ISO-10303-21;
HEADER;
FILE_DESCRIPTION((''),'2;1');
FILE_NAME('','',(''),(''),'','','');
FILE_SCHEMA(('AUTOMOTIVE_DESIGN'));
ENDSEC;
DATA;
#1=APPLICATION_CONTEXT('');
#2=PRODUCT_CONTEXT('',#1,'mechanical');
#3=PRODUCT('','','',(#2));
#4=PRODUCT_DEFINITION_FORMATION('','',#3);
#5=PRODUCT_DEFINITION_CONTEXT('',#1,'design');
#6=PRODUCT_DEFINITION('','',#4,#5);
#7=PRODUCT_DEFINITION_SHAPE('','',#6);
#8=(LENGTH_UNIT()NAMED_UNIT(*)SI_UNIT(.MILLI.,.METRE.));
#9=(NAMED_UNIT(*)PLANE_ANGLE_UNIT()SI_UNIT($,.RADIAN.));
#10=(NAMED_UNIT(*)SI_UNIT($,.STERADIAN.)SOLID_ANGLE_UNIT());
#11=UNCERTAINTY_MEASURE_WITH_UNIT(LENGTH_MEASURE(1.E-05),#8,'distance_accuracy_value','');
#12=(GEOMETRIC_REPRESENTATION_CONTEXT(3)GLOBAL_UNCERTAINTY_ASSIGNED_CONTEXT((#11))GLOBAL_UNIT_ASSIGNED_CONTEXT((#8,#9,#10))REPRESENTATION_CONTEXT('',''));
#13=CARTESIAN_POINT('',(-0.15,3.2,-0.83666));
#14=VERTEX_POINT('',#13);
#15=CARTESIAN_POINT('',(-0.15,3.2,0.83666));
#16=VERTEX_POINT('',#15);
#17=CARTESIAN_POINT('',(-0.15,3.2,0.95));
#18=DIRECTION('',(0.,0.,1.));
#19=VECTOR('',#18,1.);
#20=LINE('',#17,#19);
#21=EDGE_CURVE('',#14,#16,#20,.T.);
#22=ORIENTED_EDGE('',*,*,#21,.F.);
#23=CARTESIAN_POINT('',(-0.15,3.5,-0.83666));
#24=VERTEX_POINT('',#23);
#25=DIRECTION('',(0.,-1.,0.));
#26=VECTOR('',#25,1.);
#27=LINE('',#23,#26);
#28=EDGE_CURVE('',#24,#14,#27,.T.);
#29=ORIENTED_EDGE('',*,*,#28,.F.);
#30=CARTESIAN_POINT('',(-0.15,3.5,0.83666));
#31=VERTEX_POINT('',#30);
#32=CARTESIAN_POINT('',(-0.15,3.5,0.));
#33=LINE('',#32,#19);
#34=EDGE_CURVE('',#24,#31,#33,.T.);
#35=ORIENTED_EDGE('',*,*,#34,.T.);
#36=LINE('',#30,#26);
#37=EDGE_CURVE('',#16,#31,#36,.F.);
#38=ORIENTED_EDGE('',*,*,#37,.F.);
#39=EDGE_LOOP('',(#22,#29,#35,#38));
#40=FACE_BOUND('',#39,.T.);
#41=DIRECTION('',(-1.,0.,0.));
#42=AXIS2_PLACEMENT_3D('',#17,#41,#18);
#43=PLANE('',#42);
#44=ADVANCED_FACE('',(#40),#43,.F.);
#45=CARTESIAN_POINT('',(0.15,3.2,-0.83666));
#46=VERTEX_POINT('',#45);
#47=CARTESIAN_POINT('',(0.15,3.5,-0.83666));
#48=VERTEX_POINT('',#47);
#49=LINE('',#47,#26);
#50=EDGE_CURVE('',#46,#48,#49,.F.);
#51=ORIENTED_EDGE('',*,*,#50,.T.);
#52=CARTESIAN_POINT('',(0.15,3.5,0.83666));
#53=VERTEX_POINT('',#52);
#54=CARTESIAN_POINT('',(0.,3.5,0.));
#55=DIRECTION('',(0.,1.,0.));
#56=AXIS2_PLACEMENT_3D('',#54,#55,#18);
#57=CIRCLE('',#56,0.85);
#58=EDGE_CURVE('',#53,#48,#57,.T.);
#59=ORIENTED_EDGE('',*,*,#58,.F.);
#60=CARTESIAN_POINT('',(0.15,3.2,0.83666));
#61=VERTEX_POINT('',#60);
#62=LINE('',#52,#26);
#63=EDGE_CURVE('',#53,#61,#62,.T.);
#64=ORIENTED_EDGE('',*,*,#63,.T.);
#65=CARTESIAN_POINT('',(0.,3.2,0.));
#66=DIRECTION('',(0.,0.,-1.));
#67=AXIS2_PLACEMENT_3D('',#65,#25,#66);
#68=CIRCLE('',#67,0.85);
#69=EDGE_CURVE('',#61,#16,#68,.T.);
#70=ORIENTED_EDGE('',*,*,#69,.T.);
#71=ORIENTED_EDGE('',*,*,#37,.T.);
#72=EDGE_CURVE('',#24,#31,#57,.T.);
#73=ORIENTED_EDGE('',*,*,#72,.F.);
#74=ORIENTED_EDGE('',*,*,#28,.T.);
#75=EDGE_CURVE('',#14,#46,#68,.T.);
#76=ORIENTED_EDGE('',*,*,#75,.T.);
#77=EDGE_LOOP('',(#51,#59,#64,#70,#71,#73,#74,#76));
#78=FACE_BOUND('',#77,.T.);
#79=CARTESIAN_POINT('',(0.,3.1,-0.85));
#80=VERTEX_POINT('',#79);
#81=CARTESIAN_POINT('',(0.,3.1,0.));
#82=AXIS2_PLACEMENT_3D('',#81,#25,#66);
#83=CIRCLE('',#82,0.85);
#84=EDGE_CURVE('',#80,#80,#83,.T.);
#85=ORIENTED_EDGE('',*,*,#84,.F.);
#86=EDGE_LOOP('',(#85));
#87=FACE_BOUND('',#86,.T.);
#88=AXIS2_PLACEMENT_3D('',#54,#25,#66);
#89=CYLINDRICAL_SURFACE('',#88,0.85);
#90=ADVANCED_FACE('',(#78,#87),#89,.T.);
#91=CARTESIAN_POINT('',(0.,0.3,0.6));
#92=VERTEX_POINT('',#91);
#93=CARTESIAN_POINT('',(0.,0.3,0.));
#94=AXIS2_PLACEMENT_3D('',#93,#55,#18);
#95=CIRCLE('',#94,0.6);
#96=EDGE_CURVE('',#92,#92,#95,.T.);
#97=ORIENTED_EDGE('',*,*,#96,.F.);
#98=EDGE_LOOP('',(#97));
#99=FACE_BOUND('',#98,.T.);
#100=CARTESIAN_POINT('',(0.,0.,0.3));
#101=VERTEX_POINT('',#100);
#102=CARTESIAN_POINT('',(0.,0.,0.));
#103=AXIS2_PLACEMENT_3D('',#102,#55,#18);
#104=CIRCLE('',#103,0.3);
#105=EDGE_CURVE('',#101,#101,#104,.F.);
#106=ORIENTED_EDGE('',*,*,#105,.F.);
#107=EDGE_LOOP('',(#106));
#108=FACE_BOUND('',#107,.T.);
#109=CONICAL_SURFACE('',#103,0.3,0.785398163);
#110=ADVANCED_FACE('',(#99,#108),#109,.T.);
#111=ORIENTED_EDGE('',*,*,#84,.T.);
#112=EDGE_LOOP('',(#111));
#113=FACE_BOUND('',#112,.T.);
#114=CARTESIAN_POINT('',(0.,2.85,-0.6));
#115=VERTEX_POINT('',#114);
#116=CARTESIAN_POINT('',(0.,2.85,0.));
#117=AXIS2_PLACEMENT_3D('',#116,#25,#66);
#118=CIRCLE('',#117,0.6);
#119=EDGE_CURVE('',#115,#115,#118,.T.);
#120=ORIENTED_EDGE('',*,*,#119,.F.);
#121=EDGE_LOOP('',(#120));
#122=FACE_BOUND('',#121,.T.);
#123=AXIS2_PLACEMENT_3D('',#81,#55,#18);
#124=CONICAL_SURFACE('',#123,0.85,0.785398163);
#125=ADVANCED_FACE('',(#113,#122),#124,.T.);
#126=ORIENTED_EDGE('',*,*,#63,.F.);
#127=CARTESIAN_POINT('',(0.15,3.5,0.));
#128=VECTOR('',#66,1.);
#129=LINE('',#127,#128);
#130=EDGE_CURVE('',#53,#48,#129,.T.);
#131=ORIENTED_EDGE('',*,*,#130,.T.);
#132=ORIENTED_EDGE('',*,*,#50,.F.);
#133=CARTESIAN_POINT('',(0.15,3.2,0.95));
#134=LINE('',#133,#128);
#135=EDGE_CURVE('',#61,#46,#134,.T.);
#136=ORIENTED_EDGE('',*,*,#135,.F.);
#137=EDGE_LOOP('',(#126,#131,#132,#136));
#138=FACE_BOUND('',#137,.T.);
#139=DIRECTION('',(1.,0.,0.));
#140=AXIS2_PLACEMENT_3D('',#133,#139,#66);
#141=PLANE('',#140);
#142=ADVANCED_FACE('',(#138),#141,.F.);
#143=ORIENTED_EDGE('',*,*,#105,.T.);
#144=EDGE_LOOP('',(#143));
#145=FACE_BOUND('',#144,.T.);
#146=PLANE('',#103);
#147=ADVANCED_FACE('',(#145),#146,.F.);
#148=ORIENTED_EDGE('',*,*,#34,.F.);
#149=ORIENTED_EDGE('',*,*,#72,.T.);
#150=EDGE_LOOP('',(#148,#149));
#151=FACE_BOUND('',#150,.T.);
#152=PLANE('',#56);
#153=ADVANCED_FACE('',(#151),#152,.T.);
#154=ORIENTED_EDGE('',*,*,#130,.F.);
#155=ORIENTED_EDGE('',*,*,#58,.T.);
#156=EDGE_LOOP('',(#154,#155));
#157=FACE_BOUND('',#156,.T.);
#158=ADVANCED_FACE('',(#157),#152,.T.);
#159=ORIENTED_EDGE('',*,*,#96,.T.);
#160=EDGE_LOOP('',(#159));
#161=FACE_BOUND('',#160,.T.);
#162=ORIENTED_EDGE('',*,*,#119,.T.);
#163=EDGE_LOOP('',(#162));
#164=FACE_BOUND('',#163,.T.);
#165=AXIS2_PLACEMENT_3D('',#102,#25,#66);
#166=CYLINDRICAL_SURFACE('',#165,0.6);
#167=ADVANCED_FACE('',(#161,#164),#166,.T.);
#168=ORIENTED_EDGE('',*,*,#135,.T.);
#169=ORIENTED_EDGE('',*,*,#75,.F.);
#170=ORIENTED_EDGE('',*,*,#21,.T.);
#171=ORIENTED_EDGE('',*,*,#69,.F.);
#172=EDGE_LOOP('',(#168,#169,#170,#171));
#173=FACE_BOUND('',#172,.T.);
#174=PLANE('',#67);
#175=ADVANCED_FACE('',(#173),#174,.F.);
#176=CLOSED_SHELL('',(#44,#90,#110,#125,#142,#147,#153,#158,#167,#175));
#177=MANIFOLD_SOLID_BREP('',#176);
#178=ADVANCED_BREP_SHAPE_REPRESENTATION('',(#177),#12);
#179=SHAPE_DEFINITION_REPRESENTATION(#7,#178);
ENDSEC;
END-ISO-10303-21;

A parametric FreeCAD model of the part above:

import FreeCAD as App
import Part
import Sketcher

V = App.Vector
Q = App.Units.Quantity


def edges_at(feature, points):
    """Names of the edges that pass closest to the given points."""
    edges = feature.Shape.Edges
    near = lambda p: min(range(len(edges)), key=lambda i: edges[i].distToShape(Part.Vertex(*p))[0])
    return sorted({f"Edge{near(p) + 1}" for p in points})

doc = App.newDocument("Part")
body = doc.addObject("PartDesign::Body", "Body")

sketch1 = body.newObject("Sketcher::SketchObject", "Sketch")
sketch1.AttachmentSupport = (doc.getObject("XZ_Plane"), [""])
sketch1.MapMode = "FlatFace"
sketch1.addGeometry(Part.Circle(V(0, 0, 0), V(0, 0, 1), 0.85), False)
sketch1.addConstraint([
    Sketcher.Constraint("Coincident", 0, 3, -1, 1),
    Sketcher.Constraint("Diameter", 0, Q("1.7 mm")),
])
pad1 = body.newObject("PartDesign::Pad", "Pad")
pad1.Profile = sketch1
pad1.Length = 3.5
pad1.Reversed = True

sketch2 = body.newObject("Sketcher::SketchObject", "Sketch001")
sketch2.AttachmentSupport = (doc.getObject("XY_Plane"), [""])
sketch2.MapMode = "FlatFace"
sketch2.addGeometry([
    Part.LineSegment(V(0.85, 3.1, 0), V(0.6, 2.85, 0)),
    Part.LineSegment(V(0.6, 2.85, 0), V(0.6, 0, 0)),
    Part.LineSegment(V(0.6, 0, 0), V(0.85, 0, 0)),
    Part.LineSegment(V(0.85, 0, 0), V(0.85, 3.1, 0)),
], False)
sketch2.addConstraint([
    Sketcher.Constraint("Coincident", 0, 2, 1, 1),
    Sketcher.Constraint("Coincident", 1, 2, 2, 1),
    Sketcher.Constraint("Coincident", 2, 2, 3, 1),
    Sketcher.Constraint("Coincident", 3, 2, 0, 1),
    Sketcher.Constraint("Vertical", 1),
    Sketcher.Constraint("Horizontal", 2),
    Sketcher.Constraint("Vertical", 3),
    Sketcher.Constraint("PointOnObject", 1, 2, -1),
    Sketcher.Constraint("Angle", 0, Q("-135 deg")),
    Sketcher.Constraint("DistanceY", 3, 1, 3, 2, Q("3.1 mm")),
    Sketcher.Constraint("DistanceX", 2, 1, 2, 2, Q("0.25 mm")),
    Sketcher.Constraint("DistanceX", -1, 1, 0, 2, Q("0.6 mm")),
])
groove = body.newObject("PartDesign::Groove", "Groove")
groove.Profile = sketch2
groove.ReferenceAxis = (sketch2, ["V_Axis"])
groove.Angle = 360

sketch3 = body.newObject("Sketcher::SketchObject", "Sketch002")
sketch3.AttachmentSupport = (doc.getObject("XZ_Plane"), [""])
sketch3.MapMode = "FlatFace"
sketch3.AttachmentOffset = App.Placement(V(0, 0, -3.5), App.Rotation())
sketch3.addGeometry([
    Part.LineSegment(V(-0.15, -0.95, 0), V(-0.15, 0.95, 0)),
    Part.LineSegment(V(-0.15, 0.95, 0), V(0.15, 0.95, 0)),
    Part.LineSegment(V(0.15, 0.95, 0), V(0.15, -0.95, 0)),
    Part.LineSegment(V(0.15, -0.95, 0), V(-0.15, -0.95, 0)),
], False)
sketch3.addConstraint([
    Sketcher.Constraint("Coincident", 0, 2, 1, 1),
    Sketcher.Constraint("Coincident", 1, 2, 2, 1),
    Sketcher.Constraint("Coincident", 2, 2, 3, 1),
    Sketcher.Constraint("Coincident", 3, 2, 0, 1),
    Sketcher.Constraint("Vertical", 0),
    Sketcher.Constraint("Horizontal", 1),
    Sketcher.Constraint("Vertical", 2),
    Sketcher.Constraint("Horizontal", 3),
    Sketcher.Constraint("Symmetric", 0, 2, 2, 2, -1, 1),
    Sketcher.Constraint("DistanceX", 1, 1, 1, 2, Q("0.3 mm")),
    Sketcher.Constraint("DistanceY", 0, 1, 0, 2, Q("1.9 mm")),
])
pocket1 = body.newObject("PartDesign::Pocket", "Pocket")
pocket1.Profile = sketch3
pocket1.Length = 0.3
pocket1.Reversed = True
doc.recompute()

chamfer = body.newObject("PartDesign::Chamfer", "Chamfer")
chamfer.Base = (pocket1, edges_at(pocket1, [(-0.6, 0, 0)]))
chamfer.Size = 0.3

doc.recompute()
